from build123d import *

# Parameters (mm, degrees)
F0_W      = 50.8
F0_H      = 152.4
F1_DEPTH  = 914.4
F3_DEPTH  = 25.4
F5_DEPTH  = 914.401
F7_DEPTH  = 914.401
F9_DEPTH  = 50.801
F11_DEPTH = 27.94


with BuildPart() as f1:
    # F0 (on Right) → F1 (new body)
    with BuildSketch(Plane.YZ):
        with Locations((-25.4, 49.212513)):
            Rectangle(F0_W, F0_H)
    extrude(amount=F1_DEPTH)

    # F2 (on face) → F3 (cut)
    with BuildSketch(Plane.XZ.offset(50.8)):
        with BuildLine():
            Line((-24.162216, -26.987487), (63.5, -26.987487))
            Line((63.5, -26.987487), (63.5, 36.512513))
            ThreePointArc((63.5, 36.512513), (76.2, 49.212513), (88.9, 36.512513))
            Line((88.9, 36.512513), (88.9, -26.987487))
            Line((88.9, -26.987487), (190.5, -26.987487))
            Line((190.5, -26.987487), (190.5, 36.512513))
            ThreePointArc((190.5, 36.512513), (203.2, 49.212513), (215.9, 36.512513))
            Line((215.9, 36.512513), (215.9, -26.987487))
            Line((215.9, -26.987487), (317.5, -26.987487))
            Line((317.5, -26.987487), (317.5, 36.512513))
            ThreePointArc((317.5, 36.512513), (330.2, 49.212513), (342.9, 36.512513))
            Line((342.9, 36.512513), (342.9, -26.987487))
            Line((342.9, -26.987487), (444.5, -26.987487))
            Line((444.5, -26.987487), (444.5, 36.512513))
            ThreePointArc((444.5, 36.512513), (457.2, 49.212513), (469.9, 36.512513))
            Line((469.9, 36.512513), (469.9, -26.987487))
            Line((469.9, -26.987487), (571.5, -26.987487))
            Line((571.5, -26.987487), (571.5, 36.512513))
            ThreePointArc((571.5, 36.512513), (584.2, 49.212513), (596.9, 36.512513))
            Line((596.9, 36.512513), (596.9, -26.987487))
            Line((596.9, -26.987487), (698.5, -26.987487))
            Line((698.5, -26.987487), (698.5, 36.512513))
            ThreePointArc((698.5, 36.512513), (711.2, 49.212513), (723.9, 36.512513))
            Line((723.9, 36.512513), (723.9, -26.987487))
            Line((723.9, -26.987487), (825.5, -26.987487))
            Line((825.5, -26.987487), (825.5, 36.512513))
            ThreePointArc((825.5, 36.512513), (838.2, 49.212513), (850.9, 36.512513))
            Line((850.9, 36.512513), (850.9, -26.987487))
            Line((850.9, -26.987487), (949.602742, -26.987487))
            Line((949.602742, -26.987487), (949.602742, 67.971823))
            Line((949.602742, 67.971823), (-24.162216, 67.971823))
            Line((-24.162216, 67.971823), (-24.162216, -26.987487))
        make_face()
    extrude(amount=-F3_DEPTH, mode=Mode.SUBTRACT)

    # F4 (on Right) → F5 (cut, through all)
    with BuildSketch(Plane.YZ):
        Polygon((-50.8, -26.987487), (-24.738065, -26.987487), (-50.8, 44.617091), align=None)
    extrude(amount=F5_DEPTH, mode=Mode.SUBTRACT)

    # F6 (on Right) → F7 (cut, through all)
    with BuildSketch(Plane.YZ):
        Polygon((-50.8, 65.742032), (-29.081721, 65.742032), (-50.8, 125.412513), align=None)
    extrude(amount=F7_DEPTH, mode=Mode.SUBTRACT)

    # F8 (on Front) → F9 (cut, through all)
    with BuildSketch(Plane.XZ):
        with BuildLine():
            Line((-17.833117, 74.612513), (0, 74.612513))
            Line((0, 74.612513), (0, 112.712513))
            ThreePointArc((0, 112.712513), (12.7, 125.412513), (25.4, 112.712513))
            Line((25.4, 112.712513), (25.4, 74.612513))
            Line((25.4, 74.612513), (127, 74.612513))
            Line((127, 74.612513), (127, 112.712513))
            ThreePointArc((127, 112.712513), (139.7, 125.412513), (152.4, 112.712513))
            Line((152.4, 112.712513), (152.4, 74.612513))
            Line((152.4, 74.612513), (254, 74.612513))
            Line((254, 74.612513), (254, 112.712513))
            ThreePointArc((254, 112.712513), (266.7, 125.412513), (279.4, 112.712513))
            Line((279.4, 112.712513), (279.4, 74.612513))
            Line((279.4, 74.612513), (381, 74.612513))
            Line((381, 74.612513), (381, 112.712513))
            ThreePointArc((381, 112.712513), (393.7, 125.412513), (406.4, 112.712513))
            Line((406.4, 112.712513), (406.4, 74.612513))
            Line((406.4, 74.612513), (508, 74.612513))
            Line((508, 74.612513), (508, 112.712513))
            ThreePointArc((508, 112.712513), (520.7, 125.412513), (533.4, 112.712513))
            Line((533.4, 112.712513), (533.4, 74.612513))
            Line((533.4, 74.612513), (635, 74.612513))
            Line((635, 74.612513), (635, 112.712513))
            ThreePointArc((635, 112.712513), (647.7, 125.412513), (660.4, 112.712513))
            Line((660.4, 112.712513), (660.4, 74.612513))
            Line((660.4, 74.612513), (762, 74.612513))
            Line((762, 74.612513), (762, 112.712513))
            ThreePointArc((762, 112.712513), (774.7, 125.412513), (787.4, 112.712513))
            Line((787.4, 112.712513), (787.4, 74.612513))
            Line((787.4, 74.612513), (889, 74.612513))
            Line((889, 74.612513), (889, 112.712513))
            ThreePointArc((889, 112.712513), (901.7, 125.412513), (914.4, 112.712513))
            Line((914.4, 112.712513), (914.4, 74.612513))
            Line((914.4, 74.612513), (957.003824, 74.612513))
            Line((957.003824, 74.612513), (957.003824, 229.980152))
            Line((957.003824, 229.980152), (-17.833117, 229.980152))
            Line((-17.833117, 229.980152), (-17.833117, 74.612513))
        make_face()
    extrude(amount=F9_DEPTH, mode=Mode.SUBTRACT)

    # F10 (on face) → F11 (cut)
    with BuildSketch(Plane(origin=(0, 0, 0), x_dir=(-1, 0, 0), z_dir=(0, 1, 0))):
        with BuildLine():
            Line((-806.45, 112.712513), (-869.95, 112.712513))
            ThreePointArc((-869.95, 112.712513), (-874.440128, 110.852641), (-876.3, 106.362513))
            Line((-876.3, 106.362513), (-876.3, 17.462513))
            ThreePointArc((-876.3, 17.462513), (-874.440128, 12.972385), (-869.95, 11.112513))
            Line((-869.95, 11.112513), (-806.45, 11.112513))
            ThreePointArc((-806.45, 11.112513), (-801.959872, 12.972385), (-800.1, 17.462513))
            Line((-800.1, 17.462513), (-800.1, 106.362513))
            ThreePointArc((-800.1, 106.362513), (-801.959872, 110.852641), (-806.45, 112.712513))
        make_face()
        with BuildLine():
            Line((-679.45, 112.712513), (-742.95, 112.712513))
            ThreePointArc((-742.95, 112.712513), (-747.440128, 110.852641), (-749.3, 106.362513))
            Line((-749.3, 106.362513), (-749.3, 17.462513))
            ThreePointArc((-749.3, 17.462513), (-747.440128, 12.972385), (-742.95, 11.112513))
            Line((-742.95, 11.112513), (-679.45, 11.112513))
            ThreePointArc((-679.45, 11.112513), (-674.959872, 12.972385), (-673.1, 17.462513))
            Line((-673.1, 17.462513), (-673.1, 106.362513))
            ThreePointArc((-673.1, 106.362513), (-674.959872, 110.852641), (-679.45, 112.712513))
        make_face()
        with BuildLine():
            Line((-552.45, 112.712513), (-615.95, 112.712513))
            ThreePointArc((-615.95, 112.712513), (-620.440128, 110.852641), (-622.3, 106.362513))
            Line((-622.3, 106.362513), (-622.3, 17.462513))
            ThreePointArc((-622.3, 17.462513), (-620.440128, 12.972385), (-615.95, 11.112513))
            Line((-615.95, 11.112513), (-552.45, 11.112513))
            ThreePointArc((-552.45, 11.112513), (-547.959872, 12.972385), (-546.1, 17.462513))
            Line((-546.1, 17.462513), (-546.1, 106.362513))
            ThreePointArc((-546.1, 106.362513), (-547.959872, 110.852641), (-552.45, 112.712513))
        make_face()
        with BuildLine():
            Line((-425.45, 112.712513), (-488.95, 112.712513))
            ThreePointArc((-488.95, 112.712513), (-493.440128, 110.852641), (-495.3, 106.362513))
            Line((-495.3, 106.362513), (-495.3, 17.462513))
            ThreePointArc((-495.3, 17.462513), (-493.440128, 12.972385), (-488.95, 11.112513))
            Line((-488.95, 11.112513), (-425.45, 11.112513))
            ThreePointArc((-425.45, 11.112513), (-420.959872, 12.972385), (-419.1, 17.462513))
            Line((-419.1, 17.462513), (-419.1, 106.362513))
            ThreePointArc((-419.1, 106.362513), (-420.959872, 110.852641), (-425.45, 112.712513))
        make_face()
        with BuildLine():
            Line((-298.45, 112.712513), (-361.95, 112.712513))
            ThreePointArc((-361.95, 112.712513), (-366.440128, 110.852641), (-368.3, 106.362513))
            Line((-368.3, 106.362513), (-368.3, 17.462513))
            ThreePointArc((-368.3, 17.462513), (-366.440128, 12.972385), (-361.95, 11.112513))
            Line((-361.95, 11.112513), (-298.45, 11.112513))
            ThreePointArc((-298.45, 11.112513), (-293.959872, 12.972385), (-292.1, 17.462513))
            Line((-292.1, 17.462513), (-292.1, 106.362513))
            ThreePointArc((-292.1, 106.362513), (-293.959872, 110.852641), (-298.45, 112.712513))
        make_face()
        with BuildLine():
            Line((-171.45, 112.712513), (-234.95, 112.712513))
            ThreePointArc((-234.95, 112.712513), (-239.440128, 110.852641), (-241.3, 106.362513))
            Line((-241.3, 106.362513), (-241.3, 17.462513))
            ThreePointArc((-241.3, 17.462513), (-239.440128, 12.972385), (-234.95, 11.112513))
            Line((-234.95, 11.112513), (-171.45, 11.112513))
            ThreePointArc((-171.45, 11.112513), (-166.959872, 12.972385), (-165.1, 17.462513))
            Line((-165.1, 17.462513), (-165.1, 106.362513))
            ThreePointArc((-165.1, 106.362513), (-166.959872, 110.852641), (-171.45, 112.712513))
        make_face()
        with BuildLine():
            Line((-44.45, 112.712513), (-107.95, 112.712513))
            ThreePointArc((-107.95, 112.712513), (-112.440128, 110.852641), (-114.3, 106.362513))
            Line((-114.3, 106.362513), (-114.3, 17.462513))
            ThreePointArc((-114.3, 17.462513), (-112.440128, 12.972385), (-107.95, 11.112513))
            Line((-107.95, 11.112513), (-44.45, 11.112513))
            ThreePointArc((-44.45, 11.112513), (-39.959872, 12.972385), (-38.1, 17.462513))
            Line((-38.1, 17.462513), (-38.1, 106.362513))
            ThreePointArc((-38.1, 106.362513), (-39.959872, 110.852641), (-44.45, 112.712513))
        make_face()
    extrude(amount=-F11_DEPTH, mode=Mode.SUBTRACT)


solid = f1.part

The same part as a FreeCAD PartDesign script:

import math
import FreeCAD as App
import Part
import Sketcher

V = App.Vector
Q = App.Units.Quantity

doc = App.newDocument("Part")
body = doc.addObject("PartDesign::Body", "Body")

sketch1 = body.newObject("Sketcher::SketchObject", "Sketch")
sketch1.AttachmentSupport = (doc.getObject("YZ_Plane"), [""])
sketch1.MapMode = "FlatFace"
sketch1.addGeometry(Part.LineSegment(V(-51, 125, 0), V(-51, -27, 0)), False)
sketch1.addGeometry(Part.LineSegment(V(-51, -27, 0), V(0, -27, 0)), False)
sketch1.addGeometry(Part.LineSegment(V(0, -27, 0), V(0, 125, 0)), False)
sketch1.addGeometry(Part.LineSegment(V(0, 125, 0), V(-51, 125, 0)), False)
sketch1.addConstraint(Sketcher.Constraint("Coincident", 0, 2, 1, 1))
sketch1.addConstraint(Sketcher.Constraint("Coincident", 1, 2, 2, 1))
sketch1.addConstraint(Sketcher.Constraint("Coincident", 2, 2, 3, 1))
sketch1.addConstraint(Sketcher.Constraint("Coincident", 3, 2, 0, 1))
sketch1.addConstraint(Sketcher.Constraint("Vertical", 0))
sketch1.addConstraint(Sketcher.Constraint("Horizontal", 1))
sketch1.addConstraint(Sketcher.Constraint("Vertical", 2))
sketch1.addConstraint(Sketcher.Constraint("Horizontal", 3))
sketch1.addConstraint(Sketcher.Constraint("PointOnObject", 1, 2, -2))
sketch1.addConstraint(Sketcher.Constraint("DistanceX", 1, 1, 1, 2, Q("2 in")))
sketch1.addConstraint(Sketcher.Constraint("DistanceY", 0, 2, 0, 1, Q("6 in")))
sketch1.addConstraint(Sketcher.Constraint("DistanceY", 0, 2, -1, 1, 26.987487))
pad1 = body.newObject("PartDesign::Pad", "Pad")
pad1.Profile = sketch1
pad1.Length = Q("36 in")

sketch2 = body.newObject("Sketcher::SketchObject", "Sketch001")
sketch2.AttachmentSupport = (doc.getObject("XZ_Plane"), [""])
sketch2.MapMode = "FlatFace"
sketch2.AttachmentOffset = App.Placement(V(0, 0, 2 * 25.4), App.Rotation())
sketch2.addGeometry(Part.LineSegment(V(-24, -27, 0), V(64, -27, 0)), False)
sketch2.addGeometry(Part.LineSegment(V(64, -27, 0), V(64, 37, 0)), False)
sketch2.addGeometry(Part.ArcOfCircle(Part.Circle(V(76, 37, 0), V(0, 0, 1), 13), math.radians(0), math.radians(180)), False)
sketch2.addGeometry(Part.LineSegment(V(89, 37, 0), V(89, -27, 0)), False)
sketch2.addGeometry(Part.LineSegment(V(89, -27, 0), V(190, -27, 0)), False)
sketch2.addGeometry(Part.LineSegment(V(190, -27, 0), V(190, 37, 0)), False)
sketch2.addGeometry(Part.ArcOfCircle(Part.Circle(V(203, 37, 0), V(0, 0, 1), 13), math.radians(0), math.radians(180)), False)
sketch2.addGeometry(Part.LineSegment(V(216, 37, 0), V(216, -27, 0)), False)
sketch2.addGeometry(Part.LineSegment(V(216, -27, 0), V(318, -27, 0)), False)
sketch2.addGeometry(Part.LineSegment(V(318, -27, 0), V(318, 37, 0)), False)
sketch2.addGeometry(Part.ArcOfCircle(Part.Circle(V(330, 37, 0), V(0, 0, 1), 13), math.radians(0), math.radians(180)), False)
sketch2.addGeometry(Part.LineSegment(V(343, 37, 0), V(343, -27, 0)), False)
sketch2.addGeometry(Part.LineSegment(V(343, -27, 0), V(444, -27, 0)), False)
sketch2.addGeometry(Part.LineSegment(V(444, -27, 0), V(444, 37, 0)), False)
sketch2.addGeometry(Part.ArcOfCircle(Part.Circle(V(457, 37, 0), V(0, 0, 1), 13), math.radians(0), math.radians(180)), False)
sketch2.addGeometry(Part.LineSegment(V(470, 37, 0), V(470, -27, 0)), False)
sketch2.addGeometry(Part.LineSegment(V(470, -27, 0), V(572, -27, 0)), False)
sketch2.addGeometry(Part.LineSegment(V(572, -27, 0), V(572, 37, 0)), False)
sketch2.addGeometry(Part.ArcOfCircle(Part.Circle(V(584, 37, 0), V(0, 0, 1), 13), math.radians(0), math.radians(180)), False)
sketch2.addGeometry(Part.LineSegment(V(597, 37, 0), V(597, -27, 0)), False)
sketch2.addGeometry(Part.LineSegment(V(597, -27, 0), V(698, -27, 0)), False)
sketch2.addGeometry(Part.LineSegment(V(698, -27, 0), V(698, 37, 0)), False)
sketch2.addGeometry(Part.ArcOfCircle(Part.Circle(V(711, 37, 0), V(0, 0, 1), 13), math.radians(0), math.radians(180)), False)
sketch2.addGeometry(Part.LineSegment(V(724, 37, 0), V(724, -27, 0)), False)
sketch2.addGeometry(Part.LineSegment(V(724, -27, 0), V(826, -27, 0)), False)
sketch2.addGeometry(Part.LineSegment(V(826, -27, 0), V(826, 37, 0)), False)
sketch2.addGeometry(Part.ArcOfCircle(Part.Circle(V(838, 37, 0), V(0, 0, 1), 13), math.radians(0), math.radians(180)), False)
sketch2.addGeometry(Part.LineSegment(V(851, 37, 0), V(851, -27, 0)), False)
sketch2.addGeometry(Part.LineSegment(V(851, -27, 0), V(950, -27, 0)), False)
sketch2.addGeometry(Part.LineSegment(V(950, -27, 0), V(950, 68, 0)), False)
sketch2.addGeometry(Part.LineSegment(V(950, 68, 0), V(-24, 68, 0)), False)
sketch2.addGeometry(Part.LineSegment(V(-24, 68, 0), V(-24, -27, 0)), False)
sketch2.addConstraint(Sketcher.Constraint("Coincident", 0, 2, 1, 1))
sketch2.addConstraint(Sketcher.Constraint("Tangent", 1, 2, 2, 2))
sketch2.addConstraint(Sketcher.Constraint("Tangent", 2, 1, 3, 1))
sketch2.addConstraint(Sketcher.Constraint("Coincident", 3, 2, 4, 1))
sketch2.addConstraint(Sketcher.Constraint("Coincident", 4, 2, 5, 1))
sketch2.addConstraint(Sketcher.Constraint("Tangent", 5, 2, 6, 2))
sketch2.addConstraint(Sketcher.Constraint("Tangent", 6, 1, 7, 1))
sketch2.addConstraint(Sketcher.Constraint("Coincident", 7, 2, 8, 1))
sketch2.addConstraint(Sketcher.Constraint("Coincident", 8, 2, 9, 1))
sketch2.addConstraint(Sketcher.Constraint("Tangent", 9, 2, 10, 2))
sketch2.addConstraint(Sketcher.Constraint("Tangent", 10, 1, 11, 1))
sketch2.addConstraint(Sketcher.Constraint("Coincident", 11, 2, 12, 1))
sketch2.addConstraint(Sketcher.Constraint("Coincident", 12, 2, 13, 1))
sketch2.addConstraint(Sketcher.Constraint("Tangent", 13, 2, 14, 2))
sketch2.addConstraint(Sketcher.Constraint("Tangent", 14, 1, 15, 1))
sketch2.addConstraint(Sketcher.Constraint("Coincident", 15, 2, 16, 1))
sketch2.addConstraint(Sketcher.Constraint("Coincident", 16, 2, 17, 1))
sketch2.addConstraint(Sketcher.Constraint("Tangent", 17, 2, 18, 2))
sketch2.addConstraint(Sketcher.Constraint("Tangent", 18, 1, 19, 1))
sketch2.addConstraint(Sketcher.Constraint("Coincident", 19, 2, 20, 1))
sketch2.addConstraint(Sketcher.Constraint("Coincident", 20, 2, 21, 1))
sketch2.addConstraint(Sketcher.Constraint("Tangent", 21, 2, 22, 2))
sketch2.addConstraint(Sketcher.Constraint("Tangent", 22, 1, 23, 1))
sketch2.addConstraint(Sketcher.Constraint("Coincident", 23, 2, 24, 1))
sketch2.addConstraint(Sketcher.Constraint("Coincident", 24, 2, 25, 1))
sketch2.addConstraint(Sketcher.Constraint("Tangent", 25, 2, 26, 2))
sketch2.addConstraint(Sketcher.Constraint("Tangent", 26, 1, 27, 1))
sketch2.addConstraint(Sketcher.Constraint("Coincident", 27, 2, 28, 1))
sketch2.addConstraint(Sketcher.Constraint("Coincident", 28, 2, 29, 1))
sketch2.addConstraint(Sketcher.Constraint("Coincident", 29, 2, 30, 1))
sketch2.addConstraint(Sketcher.Constraint("Coincident", 30, 2, 31, 1))
sketch2.addConstraint(Sketcher.Constraint("Coincident", 31, 2, 0, 1))
sketch2.addConstraint(Sketcher.Constraint("Horizontal", 0))
sketch2.addConstraint(Sketcher.Constraint("Vertical", 1))
sketch2.addConstraint(Sketcher.Constraint("Vertical", 3))
sketch2.addConstraint(Sketcher.Constraint("Horizontal", 4))
sketch2.addConstraint(Sketcher.Constraint("Vertical", 5))
sketch2.addConstraint(Sketcher.Constraint("Vertical", 7))
sketch2.addConstraint(Sketcher.Constraint("Horizontal", 8))
sketch2.addConstraint(Sketcher.Constraint("Vertical", 9))
sketch2.addConstraint(Sketcher.Constraint("Vertical", 11))
sketch2.addConstraint(Sketcher.Constraint("Horizontal", 12))
sketch2.addConstraint(Sketcher.Constraint("Vertical", 13))
sketch2.addConstraint(Sketcher.Constraint("Vertical", 15))
sketch2.addConstraint(Sketcher.Constraint("Horizontal", 16))
sketch2.addConstraint(Sketcher.Constraint("Vertical", 17))
sketch2.addConstraint(Sketcher.Constraint("Vertical", 19))
sketch2.addConstraint(Sketcher.Constraint("Horizontal", 20))
sketch2.addConstraint(Sketcher.Constraint("Vertical", 21))
sketch2.addConstraint(Sketcher.Constraint("Vertical", 23))
sketch2.addConstraint(Sketcher.Constraint("Horizontal", 24))
sketch2.addConstraint(Sketcher.Constraint("Vertical", 25))
sketch2.addConstraint(Sketcher.Constraint("Vertical", 27))
sketch2.addConstraint(Sketcher.Constraint("Horizontal", 28))
sketch2.addConstraint(Sketcher.Constraint("Vertical", 29))
sketch2.addConstraint(Sketcher.Constraint("Horizontal", 30))
sketch2.addConstraint(Sketcher.Constraint("Vertical", 31))
sketch2.addConstraint(Sketcher.Constraint("Equal", 2, 6))
sketch2.addConstraint(Sketcher.Constraint("Equal", 6, 10))
sketch2.addConstraint(Sketcher.Constraint("Equal", 10, 14))
sketch2.addConstraint(Sketcher.Constraint("Equal", 14, 18))
sketch2.addConstraint(Sketcher.Constraint("Equal", 18, 22))
sketch2.addConstraint(Sketcher.Constraint("Equal", 22, 26))
sketch2.addConstraint(Sketcher.Constraint("Horizontal", 2, 3, 6, 3))
sketch2.addConstraint(Sketcher.Constraint("Horizontal", 6, 3, 10, 3))
sketch2.addConstraint(Sketcher.Constraint("Horizontal", 10, 3, 14, 3))
sketch2.addConstraint(Sketcher.Constraint("Horizontal", 14, 3, 18, 3))
sketch2.addConstraint(Sketcher.Constraint("Horizontal", 18, 3, 22, 3))
sketch2.addConstraint(Sketcher.Constraint("Horizontal", 22, 3, 26, 3))
sketch2.addConstraint(Sketcher.Constraint("Horizontal", 0, 2, 3, 2))
sketch2.addConstraint(Sketcher.Constraint("Horizontal", 4, 2, 7, 2))
sketch2.addConstraint(Sketcher.Constraint("Horizontal", 8, 2, 11, 2))
sketch2.addConstraint(Sketcher.Constraint("Horizontal", 12, 2, 15, 2))
sketch2.addConstraint(Sketcher.Constraint("Horizontal", 16, 2, 19, 2))
sketch2.addConstraint(Sketcher.Constraint("Horizontal", 20, 2, 23, 2))
sketch2.addConstraint(Sketcher.Constraint("Horizontal", 24, 2, 27, 2))
sketch2.addConstraint(Sketcher.Constraint("Equal", 4, 8))
sketch2.addConstraint(Sketcher.Constraint("Equal", 8, 12))
sketch2.addConstraint(Sketcher.Constraint("Equal", 12, 16))
sketch2.addConstraint(Sketcher.Constraint("Equal", 16, 20))
sketch2.addConstraint(Sketcher.Constraint("Equal", 20, 24))
sketch2.addConstraint(Sketcher.Constraint("Radius", 2, Q("0.5 in")))
sketch2.addConstraint(Sketcher.Constraint("DistanceX", 4, 1, 4, 2, Q("4 in")))
sketch2.addConstraint(Sketcher.Constraint("DistanceY", 1, 1, 1, 2, Q("2.5 in")))
sketch2.addConstraint(Sketcher.Constraint("DistanceX", -1, 1, 2, 3, Q("3 in")))
sketch2.addConstraint(Sketcher.Constraint("DistanceX", 30, 2, 30, 1, 973.764958))
sketch2.addConstraint(Sketcher.Constraint("DistanceY", 29, 1, 29, 2, 94.95931))
sketch2.addConstraint(Sketcher.Constraint("DistanceX", 0, 1, 0, 2, 87.662216))
sketch2.addConstraint(Sketcher.Constraint("DistanceY", -1, 1, 2, 3, 36.512513))
pocket1 = body.newObject("PartDesign::Pocket", "Pocket")
pocket1.Profile = sketch2
pocket1.Length = Q("1 in")

sketch3 = body.newObject("Sketcher::SketchObject", "Sketch002")
sketch3.AttachmentSupport = (doc.getObject("YZ_Plane"), [""])
sketch3.MapMode = "FlatFace"
sketch3.addGeometry(Part.LineSegment(V(-51, -27, 0), V(-25, -27, 0)), False)
sketch3.addGeometry(Part.LineSegment(V(-25, -27, 0), V(-51, 45, 0)), False)
sketch3.addGeometry(Part.LineSegment(V(-51, 45, 0), V(-51, -27, 0)), False)
sketch3.addConstraint(Sketcher.Constraint("Coincident", 0, 2, 1, 1))
sketch3.addConstraint(Sketcher.Constraint("Coincident", 1, 2, 2, 1))
sketch3.addConstraint(Sketcher.Constraint("Coincident", 2, 2, 0, 1))
sketch3.addConstraint(Sketcher.Constraint("Horizontal", 0))
sketch3.addConstraint(Sketcher.Constraint("Vertical", 2))
sketch3.addConstraint(Sketcher.Constraint("Distance", 1, Q("3 in")))
sketch3.addConstraint(Sketcher.Constraint("DistanceX", 1, 2, -1, 1, Q("2 in")))
sketch3.addConstraint(Sketcher.Constraint("Angle", 1, Q("110 deg")))
sketch3.addConstraint(Sketcher.Constraint("DistanceY", -1, 1, 1, 2, 44.617091))
pocket2 = body.newObject("PartDesign::Pocket", "Pocket001")
pocket2.Profile = sketch3
pocket2.Type = "ThroughAll"
pocket2.Reversed = True

sketch4 = body.newObject("Sketcher::SketchObject", "Sketch003")
sketch4.AttachmentSupport = (doc.getObject("YZ_Plane"), [""])
sketch4.MapMode = "FlatFace"
sketch4.addGeometry(Part.LineSegment(V(-51, 66, 0), V(-29, 66, 0)), False)
sketch4.addGeometry(Part.LineSegment(V(-29, 66, 0), V(-51, 125, 0)), False)
sketch4.addGeometry(Part.LineSegment(V(-51, 125, 0), V(-51, 66, 0)), False)
sketch4.addConstraint(Sketcher.Constraint("Coincident", 0, 2, 1, 1))
sketch4.addConstraint(Sketcher.Constraint("Coincident", 1, 2, 2, 1))
sketch4.addConstraint(Sketcher.Constraint("Coincident", 2, 2, 0, 1))
sketch4.addConstraint(Sketcher.Constraint("Horizontal", 0))
sketch4.addConstraint(Sketcher.Constraint("Vertical", 2))
sketch4.addConstraint(Sketcher.Constraint("DistanceX", 1, 2, -1, 1, Q("2 in")))
sketch4.addConstraint(Sketcher.Constraint("Angle", 1, Q("110 deg")))
sketch4.addConstraint(Sketcher.Constraint("Distance", 1, Q("2.5 in")))
sketch4.addConstraint(Sketcher.Constraint("DistanceY", -1, 1, 0, 2, 65.742032))
pocket3 = body.newObject("PartDesign::Pocket", "Pocket002")
pocket3.Profile = sketch4
pocket3.Type = "ThroughAll"
pocket3.Reversed = True

sketch5 = body.newObject("Sketcher::SketchObject", "Sketch004")
sketch5.AttachmentSupport = (doc.getObject("XZ_Plane"), [""])
sketch5.MapMode = "FlatFace"
sketch5.addGeometry(Part.LineSegment(V(-18, 75, 0), V(0, 75, 0)), False)
sketch5.addGeometry(Part.LineSegment(V(0, 75, 0), V(0, 113, 0)), False)
sketch5.addGeometry(Part.ArcOfCircle(Part.Circle(V(13, 113, 0), V(0, 0, 1), 13), math.radians(0), math.radians(180)), False)
sketch5.addGeometry(Part.LineSegment(V(25, 113, 0), V(25, 75, 0)), False)
sketch5.addGeometry(Part.LineSegment(V(25, 75, 0), V(127, 75, 0)), False)
sketch5.addGeometry(Part.LineSegment(V(127, 75, 0), V(127, 113, 0)), False)
sketch5.addGeometry(Part.ArcOfCircle(Part.Circle(V(140, 113, 0), V(0, 0, 1), 13), math.radians(0), math.radians(180)), False)
sketch5.addGeometry(Part.LineSegment(V(152, 113, 0), V(152, 75, 0)), False)
sketch5.addGeometry(Part.LineSegment(V(152, 75, 0), V(254, 75, 0)), False)
sketch5.addGeometry(Part.LineSegment(V(254, 75, 0), V(254, 113, 0)), False)
sketch5.addGeometry(Part.ArcOfCircle(Part.Circle(V(267, 113, 0), V(0, 0, 1), 13), math.radians(0), math.radians(180)), False)
sketch5.addGeometry(Part.LineSegment(V(279, 113, 0), V(279, 75, 0)), False)
sketch5.addGeometry(Part.LineSegment(V(279, 75, 0), V(381, 75, 0)), False)
sketch5.addGeometry(Part.LineSegment(V(381, 75, 0), V(381, 113, 0)), False)
sketch5.addGeometry(Part.ArcOfCircle(Part.Circle(V(394, 113, 0), V(0, 0, 1), 13), math.radians(0), math.radians(180)), False)
sketch5.addGeometry(Part.LineSegment(V(406, 113, 0), V(406, 75, 0)), False)
sketch5.addGeometry(Part.LineSegment(V(406, 75, 0), V(508, 75, 0)), False)
sketch5.addGeometry(Part.LineSegment(V(508, 75, 0), V(508, 113, 0)), False)
sketch5.addGeometry(Part.ArcOfCircle(Part.Circle(V(521, 113, 0), V(0, 0, 1), 13), math.radians(0), math.radians(180)), False)
sketch5.addGeometry(Part.LineSegment(V(533, 113, 0), V(533, 75, 0)), False)
sketch5.addGeometry(Part.LineSegment(V(533, 75, 0), V(635, 75, 0)), False)
sketch5.addGeometry(Part.LineSegment(V(635, 75, 0), V(635, 113, 0)), False)
sketch5.addGeometry(Part.ArcOfCircle(Part.Circle(V(648, 113, 0), V(0, 0, 1), 13), math.radians(0), math.radians(180)), False)
sketch5.addGeometry(Part.LineSegment(V(660, 113, 0), V(660, 75, 0)), False)
sketch5.addGeometry(Part.LineSegment(V(660, 75, 0), V(762, 75, 0)), False)
sketch5.addGeometry(Part.LineSegment(V(762, 75, 0), V(762, 113, 0)), False)
sketch5.addGeometry(Part.ArcOfCircle(Part.Circle(V(775, 113, 0), V(0, 0, 1), 13), math.radians(0), math.radians(180)), False)
sketch5.addGeometry(Part.LineSegment(V(787, 113, 0), V(787, 75, 0)), False)
sketch5.addGeometry(Part.LineSegment(V(787, 75, 0), V(889, 75, 0)), False)
sketch5.addGeometry(Part.LineSegment(V(889, 75, 0), V(889, 113, 0)), False)
sketch5.addGeometry(Part.ArcOfCircle(Part.Circle(V(902, 113, 0), V(0, 0, 1), 13), math.radians(0), math.radians(180)), False)
sketch5.addGeometry(Part.LineSegment(V(914, 113, 0), V(914, 75, 0)), False)
sketch5.addGeometry(Part.LineSegment(V(914, 75, 0), V(957, 75, 0)), False)
sketch5.addGeometry(Part.LineSegment(V(957, 75, 0), V(957, 230, 0)), False)
sketch5.addGeometry(Part.LineSegment(V(957, 230, 0), V(-18, 230, 0)), False)
sketch5.addGeometry(Part.LineSegment(V(-18, 230, 0), V(-18, 75, 0)), False)
sketch5.addConstraint(Sketcher.Constraint("Coincident", 0, 2, 1, 1))
sketch5.addConstraint(Sketcher.Constraint("Tangent", 1, 2, 2, 2))
sketch5.addConstraint(Sketcher.Constraint("Tangent", 2, 1, 3, 1))
sketch5.addConstraint(Sketcher.Constraint("Coincident", 3, 2, 4, 1))
sketch5.addConstraint(Sketcher.Constraint("Coincident", 4, 2, 5, 1))
sketch5.addConstraint(Sketcher.Constraint("Tangent", 5, 2, 6, 2))
sketch5.addConstraint(Sketcher.Constraint("Tangent", 6, 1, 7, 1))
sketch5.addConstraint(Sketcher.Constraint("Coincident", 7, 2, 8, 1))
sketch5.addConstraint(Sketcher.Constraint("Coincident", 8, 2, 9, 1))
sketch5.addConstraint(Sketcher.Constraint("Tangent", 9, 2, 10, 2))
sketch5.addConstraint(Sketcher.Constraint("Tangent", 10, 1, 11, 1))
sketch5.addConstraint(Sketcher.Constraint("Coincident", 11, 2, 12, 1))
sketch5.addConstraint(Sketcher.Constraint("Coincident", 12, 2, 13, 1))
sketch5.addConstraint(Sketcher.Constraint("Tangent", 13, 2, 14, 2))
sketch5.addConstraint(Sketcher.Constraint("Tangent", 14, 1, 15, 1))
sketch5.addConstraint(Sketcher.Constraint("Coincident", 15, 2, 16, 1))
sketch5.addConstraint(Sketcher.Constraint("Coincident", 16, 2, 17, 1))
sketch5.addConstraint(Sketcher.Constraint("Tangent", 17, 2, 18, 2))
sketch5.addConstraint(Sketcher.Constraint("Tangent", 18, 1, 19, 1))
sketch5.addConstraint(Sketcher.Constraint("Coincident", 19, 2, 20, 1))
sketch5.addConstraint(Sketcher.Constraint("Coincident", 20, 2, 21, 1))
sketch5.addConstraint(Sketcher.Constraint("Tangent", 21, 2, 22, 2))
sketch5.addConstraint(Sketcher.Constraint("Tangent", 22, 1, 23, 1))
sketch5.addConstraint(Sketcher.Constraint("Coincident", 23, 2, 24, 1))
sketch5.addConstraint(Sketcher.Constraint("Coincident", 24, 2, 25, 1))
sketch5.addConstraint(Sketcher.Constraint("Tangent", 25, 2, 26, 2))
sketch5.addConstraint(Sketcher.Constraint("Tangent", 26, 1, 27, 1))
sketch5.addConstraint(Sketcher.Constraint("Coincident", 27, 2, 28, 1))
sketch5.addConstraint(Sketcher.Constraint("Coincident", 28, 2, 29, 1))
sketch5.addConstraint(Sketcher.Constraint("Tangent", 29, 2, 30, 2))
sketch5.addConstraint(Sketcher.Constraint("Tangent", 30, 1, 31, 1))
sketch5.addConstraint(Sketcher.Constraint("Coincident", 31, 2, 32, 1))
sketch5.addConstraint(Sketcher.Constraint("Coincident", 32, 2, 33, 1))
sketch5.addConstraint(Sketcher.Constraint("Coincident", 33, 2, 34, 1))
sketch5.addConstraint(Sketcher.Constraint("Coincident", 34, 2, 35, 1))
sketch5.addConstraint(Sketcher.Constraint("Coincident", 35, 2, 0, 1))
sketch5.addConstraint(Sketcher.Constraint("Horizontal", 0))
sketch5.addConstraint(Sketcher.Constraint("Vertical", 1))
sketch5.addConstraint(Sketcher.Constraint("Vertical", 3))
sketch5.addConstraint(Sketcher.Constraint("Horizontal", 4))
sketch5.addConstraint(Sketcher.Constraint("Vertical", 5))
sketch5.addConstraint(Sketcher.Constraint("Vertical", 7))
sketch5.addConstraint(Sketcher.Constraint("Horizontal", 8))
sketch5.addConstraint(Sketcher.Constraint("Vertical", 9))
sketch5.addConstraint(Sketcher.Constraint("Vertical", 11))
sketch5.addConstraint(Sketcher.Constraint("Horizontal", 12))
sketch5.addConstraint(Sketcher.Constraint("Vertical", 13))
sketch5.addConstraint(Sketcher.Constraint("Vertical", 15))
sketch5.addConstraint(Sketcher.Constraint("Horizontal", 16))
sketch5.addConstraint(Sketcher.Constraint("Vertical", 17))
sketch5.addConstraint(Sketcher.Constraint("Vertical", 19))
sketch5.addConstraint(Sketcher.Constraint("Horizontal", 20))
sketch5.addConstraint(Sketcher.Constraint("Vertical", 21))
sketch5.addConstraint(Sketcher.Constraint("Vertical", 23))
sketch5.addConstraint(Sketcher.Constraint("Horizontal", 24))
sketch5.addConstraint(Sketcher.Constraint("Vertical", 25))
sketch5.addConstraint(Sketcher.Constraint("Vertical", 27))
sketch5.addConstraint(Sketcher.Constraint("Horizontal", 28))
sketch5.addConstraint(Sketcher.Constraint("Vertical", 29))
sketch5.addConstraint(Sketcher.Constraint("Vertical", 31))
sketch5.addConstraint(Sketcher.Constraint("Horizontal", 32))
sketch5.addConstraint(Sketcher.Constraint("Vertical", 33))
sketch5.addConstraint(Sketcher.Constraint("Horizontal", 34))
sketch5.addConstraint(Sketcher.Constraint("Vertical", 35))
sketch5.addConstraint(Sketcher.Constraint("Equal", 2, 6))
sketch5.addConstraint(Sketcher.Constraint("Equal", 6, 10))
sketch5.addConstraint(Sketcher.Constraint("Equal", 10, 14))
sketch5.addConstraint(Sketcher.Constraint("Equal", 14, 18))
sketch5.addConstraint(Sketcher.Constraint("Equal", 18, 22))
sketch5.addConstraint(Sketcher.Constraint("Equal", 22, 26))
sketch5.addConstraint(Sketcher.Constraint("Equal", 26, 30))
sketch5.addConstraint(Sketcher.Constraint("PointOnObject", 0, 2, -2))
sketch5.addConstraint(Sketcher.Constraint("Horizontal", 2, 3, 6, 3))
sketch5.addConstraint(Sketcher.Constraint("Horizontal", 6, 3, 10, 3))
sketch5.addConstraint(Sketcher.Constraint("Horizontal", 10, 3, 14, 3))
sketch5.addConstraint(Sketcher.Constraint("Horizontal", 14, 3, 18, 3))
sketch5.addConstraint(Sketcher.Constraint("Horizontal", 18, 3, 22, 3))
sketch5.addConstraint(Sketcher.Constraint("Horizontal", 22, 3, 26, 3))
sketch5.addConstraint(Sketcher.Constraint("Horizontal", 26, 3, 30, 3))
sketch5.addConstraint(Sketcher.Constraint("Horizontal", 0, 2, 3, 2))
sketch5.addConstraint(Sketcher.Constraint("Horizontal", 4, 2, 7, 2))
sketch5.addConstraint(Sketcher.Constraint("Horizontal", 8, 2, 11, 2))
sketch5.addConstraint(Sketcher.Constraint("Horizontal", 12, 2, 15, 2))
sketch5.addConstraint(Sketcher.Constraint("Horizontal", 16, 2, 19, 2))
sketch5.addConstraint(Sketcher.Constraint("Horizontal", 20, 2, 23, 2))
sketch5.addConstraint(Sketcher.Constraint("Horizontal", 24, 2, 27, 2))
sketch5.addConstraint(Sketcher.Constraint("Horizontal", 28, 2, 31, 2))
sketch5.addConstraint(Sketcher.Constraint("Equal", 4, 8))
sketch5.addConstraint(Sketcher.Constraint("Equal", 8, 12))
sketch5.addConstraint(Sketcher.Constraint("Equal", 12, 16))
sketch5.addConstraint(Sketcher.Constraint("Equal", 16, 20))
sketch5.addConstraint(Sketcher.Constraint("Equal", 20, 24))
sketch5.addConstraint(Sketcher.Constraint("Equal", 24, 28))
sketch5.addConstraint(Sketcher.Constraint("Radius", 2, Q("0.5 in")))
sketch5.addConstraint(Sketcher.Constraint("DistanceX", 4, 1, 4, 2, Q("4 in")))
sketch5.addConstraint(Sketcher.Constraint("DistanceY", 1, 1, 1, 2, Q("1.5 in")))
sketch5.addConstraint(Sketcher.Constraint("DistanceX", 34, 2, 34, 1, 974.836941))
sketch5.addConstraint(Sketcher.Constraint("DistanceY", 33, 1, 33, 2, 155.367639))
sketch5.addConstraint(Sketcher.Constraint("DistanceX", 0, 1, 0, 2, 17.833117))
sketch5.addConstraint(Sketcher.Constraint("DistanceY", -1, 1, 33, 2, 229.980152))
pocket4 = body.newObject("PartDesign::Pocket", "Pocket003")
pocket4.Profile = sketch5
pocket4.Type = "ThroughAll"
pocket4.Reversed = True

sketch6 = body.newObject("Sketcher::SketchObject", "Sketch005")
sketch6.AttachmentSupport = (doc.getObject("XZ_Plane"), [""])
sketch6.MapMode = "FlatFace"
sketch6.addGeometry(Part.LineSegment(V(806, 113, 0), V(870, 113, 0)), False)
sketch6.addGeometry(Part.ArcOfCircle(Part.Circle(V(870, 106, 0), V(0, 0, 1), 6), math.radians(0), math.radians(90)), False)
sketch6.addGeometry(Part.LineSegment(V(876, 106, 0), V(876, 17, 0)), False)
sketch6.addGeometry(Part.ArcOfCircle(Part.Circle(V(870, 17, 0), V(0, 0, 1), 6), math.radians(-90), math.radians(0)), False)
sketch6.addGeometry(Part.LineSegment(V(870, 11, 0), V(806, 11, 0)), False)
sketch6.addGeometry(Part.ArcOfCircle(Part.Circle(V(806, 17, 0), V(0, 0, 1), 6), math.radians(-180), math.radians(-90)), False)
sketch6.addGeometry(Part.LineSegment(V(800, 17, 0), V(800, 106, 0)), False)
sketch6.addGeometry(Part.ArcOfCircle(Part.Circle(V(806, 106, 0), V(0, 0, 1), 6), math.radians(90), math.radians(180)), False)
sketch6.addGeometry(Part.LineSegment(V(679, 113, 0), V(743, 113, 0)), False)
sketch6.addGeometry(Part.ArcOfCircle(Part.Circle(V(743, 106, 0), V(0, 0, 1), 6), math.radians(0), math.radians(90)), False)
sketch6.addGeometry(Part.LineSegment(V(749, 106, 0), V(749, 17, 0)), False)
sketch6.addGeometry(Part.ArcOfCircle(Part.Circle(V(743, 17, 0), V(0, 0, 1), 6), math.radians(-90), math.radians(0)), False)
sketch6.addGeometry(Part.LineSegment(V(743, 11, 0), V(679, 11, 0)), False)
sketch6.addGeometry(Part.ArcOfCircle(Part.Circle(V(679, 17, 0), V(0, 0, 1), 6), math.radians(-180), math.radians(-90)), False)
sketch6.addGeometry(Part.LineSegment(V(673, 17, 0), V(673, 106, 0)), False)
sketch6.addGeometry(Part.ArcOfCircle(Part.Circle(V(679, 106, 0), V(0, 0, 1), 6), math.radians(90), math.radians(180)), False)
sketch6.addGeometry(Part.LineSegment(V(552, 113, 0), V(616, 113, 0)), False)
sketch6.addGeometry(Part.ArcOfCircle(Part.Circle(V(616, 106, 0), V(0, 0, 1), 6), math.radians(0), math.radians(90)), False)
sketch6.addGeometry(Part.LineSegment(V(622, 106, 0), V(622, 17, 0)), False)
sketch6.addGeometry(Part.ArcOfCircle(Part.Circle(V(616, 17, 0), V(0, 0, 1), 6), math.radians(-90), math.radians(0)), False)
sketch6.addGeometry(Part.LineSegment(V(616, 11, 0), V(552, 11, 0)), False)
sketch6.addGeometry(Part.ArcOfCircle(Part.Circle(V(552, 17, 0), V(0, 0, 1), 6), math.radians(-180), math.radians(-90)), False)
sketch6.addGeometry(Part.LineSegment(V(546, 17, 0), V(546, 106, 0)), False)
sketch6.addGeometry(Part.ArcOfCircle(Part.Circle(V(552, 106, 0), V(0, 0, 1), 6), math.radians(90), math.radians(180)), False)
sketch6.addGeometry(Part.LineSegment(V(425, 113, 0), V(489, 113, 0)), False)
sketch6.addGeometry(Part.ArcOfCircle(Part.Circle(V(489, 106, 0), V(0, 0, 1), 6), math.radians(0), math.radians(90)), False)
sketch6.addGeometry(Part.LineSegment(V(495, 106, 0), V(495, 17, 0)), False)
sketch6.addGeometry(Part.ArcOfCircle(Part.Circle(V(489, 17, 0), V(0, 0, 1), 6), math.radians(-90), math.radians(0)), False)
sketch6.addGeometry(Part.LineSegment(V(489, 11, 0), V(425, 11, 0)), False)
sketch6.addGeometry(Part.ArcOfCircle(Part.Circle(V(425, 17, 0), V(0, 0, 1), 6), math.radians(-180), math.radians(-90)), False)
sketch6.addGeometry(Part.LineSegment(V(419, 17, 0), V(419, 106, 0)), False)
sketch6.addGeometry(Part.ArcOfCircle(Part.Circle(V(425, 106, 0), V(0, 0, 1), 6), math.radians(90), math.radians(180)), False)
sketch6.addGeometry(Part.LineSegment(V(298, 113, 0), V(362, 113, 0)), False)
sketch6.addGeometry(Part.ArcOfCircle(Part.Circle(V(362, 106, 0), V(0, 0, 1), 6), math.radians(0), math.radians(90)), False)
sketch6.addGeometry(Part.LineSegment(V(368, 106, 0), V(368, 17, 0)), False)
sketch6.addGeometry(Part.ArcOfCircle(Part.Circle(V(362, 17, 0), V(0, 0, 1), 6), math.radians(-90), math.radians(0)), False)
sketch6.addGeometry(Part.LineSegment(V(362, 11, 0), V(298, 11, 0)), False)
sketch6.addGeometry(Part.ArcOfCircle(Part.Circle(V(298, 17, 0), V(0, 0, 1), 6), math.radians(-180), math.radians(-90)), False)
sketch6.addGeometry(Part.LineSegment(V(292, 17, 0), V(292, 106, 0)), False)
sketch6.addGeometry(Part.ArcOfCircle(Part.Circle(V(298, 106, 0), V(0, 0, 1), 6), math.radians(90), math.radians(180)), False)
sketch6.addGeometry(Part.LineSegment(V(171, 113, 0), V(235, 113, 0)), False)
sketch6.addGeometry(Part.ArcOfCircle(Part.Circle(V(235, 106, 0), V(0, 0, 1), 6), math.radians(0), math.radians(90)), False)
sketch6.addGeometry(Part.LineSegment(V(241, 106, 0), V(241, 17, 0)), False)
sketch6.addGeometry(Part.ArcOfCircle(Part.Circle(V(235, 17, 0), V(0, 0, 1), 6), math.radians(-90), math.radians(0)), False)
sketch6.addGeometry(Part.LineSegment(V(235, 11, 0), V(171, 11, 0)), False)
sketch6.addGeometry(Part.ArcOfCircle(Part.Circle(V(171, 17, 0), V(0, 0, 1), 6), math.radians(-180), math.radians(-90)), False)
sketch6.addGeometry(Part.LineSegment(V(165, 17, 0), V(165, 106, 0)), False)
sketch6.addGeometry(Part.ArcOfCircle(Part.Circle(V(171, 106, 0), V(0, 0, 1), 6), math.radians(90), math.radians(180)), False)
sketch6.addGeometry(Part.LineSegment(V(44, 113, 0), V(108, 113, 0)), False)
sketch6.addGeometry(Part.ArcOfCircle(Part.Circle(V(108, 106, 0), V(0, 0, 1), 6), math.radians(0), math.radians(90)), False)
sketch6.addGeometry(Part.LineSegment(V(114, 106, 0), V(114, 17, 0)), False)
sketch6.addGeometry(Part.ArcOfCircle(Part.Circle(V(108, 17, 0), V(0, 0, 1), 6), math.radians(-90), math.radians(0)), False)
sketch6.addGeometry(Part.LineSegment(V(108, 11, 0), V(44, 11, 0)), False)
sketch6.addGeometry(Part.ArcOfCircle(Part.Circle(V(44, 17, 0), V(0, 0, 1), 6), math.radians(-180), math.radians(-90)), False)
sketch6.addGeometry(Part.LineSegment(V(38, 17, 0), V(38, 106, 0)), False)
sketch6.addGeometry(Part.ArcOfCircle(Part.Circle(V(44, 106, 0), V(0, 0, 1), 6), math.radians(90), math.radians(180)), False)
sketch6.addConstraint(Sketcher.Constraint("Tangent", 0, 2, 1, 2))
sketch6.addConstraint(Sketcher.Constraint("Tangent", 1, 1, 2, 1))
sketch6.addConstraint(Sketcher.Constraint("Tangent", 2, 2, 3, 2))
sketch6.addConstraint(Sketcher.Constraint("Tangent", 3, 1, 4, 1))
sketch6.addConstraint(Sketcher.Constraint("Tangent", 4, 2, 5, 2))
sketch6.addConstraint(Sketcher.Constraint("Tangent", 5, 1, 6, 1))
sketch6.addConstraint(Sketcher.Constraint("Tangent", 6, 2, 7, 2))
sketch6.addConstraint(Sketcher.Constraint("Tangent", 7, 1, 0, 1))
sketch6.addConstraint(Sketcher.Constraint("Tangent", 8, 2, 9, 2))
sketch6.addConstraint(Sketcher.Constraint("Tangent", 9, 1, 10, 1))
sketch6.addConstraint(Sketcher.Constraint("Tangent", 10, 2, 11, 2))
sketch6.addConstraint(Sketcher.Constraint("Tangent", 11, 1, 12, 1))
sketch6.addConstraint(Sketcher.Constraint("Tangent", 12, 2, 13, 2))
sketch6.addConstraint(Sketcher.Constraint("Tangent", 13, 1, 14, 1))
sketch6.addConstraint(Sketcher.Constraint("Tangent", 14, 2, 15, 2))
sketch6.addConstraint(Sketcher.Constraint("Tangent", 15, 1, 8, 1))
sketch6.addConstraint(Sketcher.Constraint("Tangent", 16, 2, 17, 2))
sketch6.addConstraint(Sketcher.Constraint("Tangent", 17, 1, 18, 1))
sketch6.addConstraint(Sketcher.Constraint("Tangent", 18, 2, 19, 2))
sketch6.addConstraint(Sketcher.Constraint("Tangent", 19, 1, 20, 1))
sketch6.addConstraint(Sketcher.Constraint("Tangent", 20, 2, 21, 2))
sketch6.addConstraint(Sketcher.Constraint("Tangent", 21, 1, 22, 1))
sketch6.addConstraint(Sketcher.Constraint("Tangent", 22, 2, 23, 2))
sketch6.addConstraint(Sketcher.Constraint("Tangent", 23, 1, 16, 1))
sketch6.addConstraint(Sketcher.Constraint("Tangent", 24, 2, 25, 2))
sketch6.addConstraint(Sketcher.Constraint("Tangent", 25, 1, 26, 1))
sketch6.addConstraint(Sketcher.Constraint("Tangent", 26, 2, 27, 2))
sketch6.addConstraint(Sketcher.Constraint("Tangent", 27, 1, 28, 1))
sketch6.addConstraint(Sketcher.Constraint("Tangent", 28, 2, 29, 2))
sketch6.addConstraint(Sketcher.Constraint("Tangent", 29, 1, 30, 1))
sketch6.addConstraint(Sketcher.Constraint("Tangent", 30, 2, 31, 2))
sketch6.addConstraint(Sketcher.Constraint("Tangent", 31, 1, 24, 1))
sketch6.addConstraint(Sketcher.Constraint("Tangent", 32, 2, 33, 2))
sketch6.addConstraint(Sketcher.Constraint("Tangent", 33, 1, 34, 1))
sketch6.addConstraint(Sketcher.Constraint("Tangent", 34, 2, 35, 2))
sketch6.addConstraint(Sketcher.Constraint("Tangent", 35, 1, 36, 1))
sketch6.addConstraint(Sketcher.Constraint("Tangent", 36, 2, 37, 2))
sketch6.addConstraint(Sketcher.Constraint("Tangent", 37, 1, 38, 1))
sketch6.addConstraint(Sketcher.Constraint("Tangent", 38, 2, 39, 2))
sketch6.addConstraint(Sketcher.Constraint("Tangent", 39, 1, 32, 1))
sketch6.addConstraint(Sketcher.Constraint("Tangent", 40, 2, 41, 2))
sketch6.addConstraint(Sketcher.Constraint("Tangent", 41, 1, 42, 1))
sketch6.addConstraint(Sketcher.Constraint("Tangent", 42, 2, 43, 2))
sketch6.addConstraint(Sketcher.Constraint("Tangent", 43, 1, 44, 1))
sketch6.addConstraint(Sketcher.Constraint("Tangent", 44, 2, 45, 2))
sketch6.addConstraint(Sketcher.Constraint("Tangent", 45, 1, 46, 1))
sketch6.addConstraint(Sketcher.Constraint("Tangent", 46, 2, 47, 2))
sketch6.addConstraint(Sketcher.Constraint("Tangent", 47, 1, 40, 1))
sketch6.addConstraint(Sketcher.Constraint("Tangent", 48, 2, 49, 2))
sketch6.addConstraint(Sketcher.Constraint("Tangent", 49, 1, 50, 1))
sketch6.addConstraint(Sketcher.Constraint("Tangent", 50, 2, 51, 2))
sketch6.addConstraint(Sketcher.Constraint("Tangent", 51, 1, 52, 1))
sketch6.addConstraint(Sketcher.Constraint("Tangent", 52, 2, 53, 2))
sketch6.addConstraint(Sketcher.Constraint("Tangent", 53, 1, 54, 1))
sketch6.addConstraint(Sketcher.Constraint("Tangent", 54, 2, 55, 2))
sketch6.addConstraint(Sketcher.Constraint("Tangent", 55, 1, 48, 1))
sketch6.addConstraint(Sketcher.Constraint("Horizontal", 0))
sketch6.addConstraint(Sketcher.Constraint("Vertical", 2))
sketch6.addConstraint(Sketcher.Constraint("Horizontal", 4))
sketch6.addConstraint(Sketcher.Constraint("Vertical", 6))
sketch6.addConstraint(Sketcher.Constraint("Horizontal", 8))
sketch6.addConstraint(Sketcher.Constraint("Vertical", 10))
sketch6.addConstraint(Sketcher.Constraint("Horizontal", 12))
sketch6.addConstraint(Sketcher.Constraint("Vertical", 14))
sketch6.addConstraint(Sketcher.Constraint("Horizontal", 16))
sketch6.addConstraint(Sketcher.Constraint("Vertical", 18))
sketch6.addConstraint(Sketcher.Constraint("Horizontal", 20))
sketch6.addConstraint(Sketcher.Constraint("Vertical", 22))
sketch6.addConstraint(Sketcher.Constraint("Horizontal", 24))
sketch6.addConstraint(Sketcher.Constraint("Vertical", 26))
sketch6.addConstraint(Sketcher.Constraint("Horizontal", 28))
sketch6.addConstraint(Sketcher.Constraint("Vertical", 30))
sketch6.addConstraint(Sketcher.Constraint("Horizontal", 32))
sketch6.addConstraint(Sketcher.Constraint("Vertical", 34))
sketch6.addConstraint(Sketcher.Constraint("Horizontal", 36))
sketch6.addConstraint(Sketcher.Constraint("Vertical", 38))
sketch6.addConstraint(Sketcher.Constraint("Horizontal", 40))
sketch6.addConstraint(Sketcher.Constraint("Vertical", 42))
sketch6.addConstraint(Sketcher.Constraint("Horizontal", 44))
sketch6.addConstraint(Sketcher.Constraint("Vertical", 46))
sketch6.addConstraint(Sketcher.Constraint("Horizontal", 48))
sketch6.addConstraint(Sketcher.Constraint("Vertical", 50))
sketch6.addConstraint(Sketcher.Constraint("Horizontal", 52))
sketch6.addConstraint(Sketcher.Constraint("Vertical", 54))
sketch6.addConstraint(Sketcher.Constraint("Equal", 1, 3))
sketch6.addConstraint(Sketcher.Constraint("Equal", 3, 5))
sketch6.addConstraint(Sketcher.Constraint("Equal", 5, 7))
sketch6.addConstraint(Sketcher.Constraint("Equal", 7, 9))
sketch6.addConstraint(Sketcher.Constraint("Equal", 9, 11))
sketch6.addConstraint(Sketcher.Constraint("Equal", 11, 13))
sketch6.addConstraint(Sketcher.Constraint("Equal", 13, 15))
sketch6.addConstraint(Sketcher.Constraint("Equal", 15, 17))
sketch6.addConstraint(Sketcher.Constraint("Equal", 17, 19))
sketch6.addConstraint(Sketcher.Constraint("Equal", 19, 21))
sketch6.addConstraint(Sketcher.Constraint("Equal", 21, 23))
sketch6.addConstraint(Sketcher.Constraint("Equal", 23, 25))
sketch6.addConstraint(Sketcher.Constraint("Equal", 25, 27))
sketch6.addConstraint(Sketcher.Constraint("Equal", 27, 29))
sketch6.addConstraint(Sketcher.Constraint("Equal", 29, 31))
sketch6.addConstraint(Sketcher.Constraint("Equal", 31, 33))
sketch6.addConstraint(Sketcher.Constraint("Equal", 33, 35))
sketch6.addConstraint(Sketcher.Constraint("Equal", 35, 37))
sketch6.addConstraint(Sketcher.Constraint("Equal", 37, 39))
sketch6.addConstraint(Sketcher.Constraint("Equal", 39, 41))
sketch6.addConstraint(Sketcher.Constraint("Equal", 41, 43))
sketch6.addConstraint(Sketcher.Constraint("Equal", 43, 45))
sketch6.addConstraint(Sketcher.Constraint("Equal", 45, 47))
sketch6.addConstraint(Sketcher.Constraint("Equal", 47, 49))
sketch6.addConstraint(Sketcher.Constraint("Equal", 49, 51))
sketch6.addConstraint(Sketcher.Constraint("Equal", 51, 53))
sketch6.addConstraint(Sketcher.Constraint("Equal", 53, 55))
sketch6.addConstraint(Sketcher.Constraint("Horizontal", 7, 3, 9, 3))
sketch6.addConstraint(Sketcher.Constraint("Horizontal", 5, 3, 11, 3))
sketch6.addConstraint(Sketcher.Constraint("Horizontal", 15, 3, 17, 3))
sketch6.addConstraint(Sketcher.Constraint("Horizontal", 13, 3, 19, 3))
sketch6.addConstraint(Sketcher.Constraint("Horizontal", 23, 3, 25, 3))
sketch6.addConstraint(Sketcher.Constraint("Horizontal", 21, 3, 27, 3))
sketch6.addConstraint(Sketcher.Constraint("Horizontal", 31, 3, 33, 3))
sketch6.addConstraint(Sketcher.Constraint("Horizontal", 29, 3, 35, 3))
sketch6.addConstraint(Sketcher.Constraint("Horizontal", 39, 3, 41, 3))
sketch6.addConstraint(Sketcher.Constraint("Horizontal", 37, 3, 43, 3))
sketch6.addConstraint(Sketcher.Constraint("Horizontal", 47, 3, 49, 3))
sketch6.addConstraint(Sketcher.Constraint("Horizontal", 45, 3, 51, 3))
sketch6.addConstraint(Sketcher.Constraint("Equal", 4, 8))
sketch6.addConstraint(Sketcher.Constraint("Equal", 12, 16))
sketch6.addConstraint(Sketcher.Constraint("Equal", 20, 24))
sketch6.addConstraint(Sketcher.Constraint("Equal", 28, 32))
sketch6.addConstraint(Sketcher.Constraint("Equal", 36, 40))
sketch6.addConstraint(Sketcher.Constraint("Equal", 44, 48))
sketch6.addConstraint(Sketcher.Constraint("Radius", 1, Q("0.25 in")))
sketch6.addConstraint(Sketcher.Constraint("DistanceX", 0, 1, 0, 2, Q("2.5 in")))
sketch6.addConstraint(Sketcher.Constraint("DistanceY", 2, 2, 2, 1, Q("3.5 in")))
sketch6.addConstraint(Sketcher.Constraint("DistanceX", -1, 1, 1, 1, Q("34.5 in")))
sketch6.addConstraint(Sketcher.Constraint("DistanceX", -1, 1, 9, 1, Q("29.5 in")))
sketch6.addConstraint(Sketcher.Constraint("DistanceX", -1, 1, 17, 1, Q("24.5 in")))
sketch6.addConstraint(Sketcher.Constraint("DistanceX", -1, 1, 25, 1, Q("19.5 in")))
sketch6.addConstraint(Sketcher.Constraint("DistanceX", -1, 1, 33, 1, Q("14.5 in")))
sketch6.addConstraint(Sketcher.Constraint("DistanceX", -1, 1, 41, 1, Q("9.5 in")))
sketch6.addConstraint(Sketcher.Constraint("DistanceX", -1, 1, 49, 1, Q("4.5 in")))
sketch6.addConstraint(Sketcher.Constraint("DistanceY", -1, 1, 1, 3, 106.362513))
pocket5 = body.newObject("PartDesign::Pocket", "Pocket004")
pocket5.Profile = sketch6
pocket5.Length = Q("1.1 in")
pocket5.Reversed = True

doc.recompute()
